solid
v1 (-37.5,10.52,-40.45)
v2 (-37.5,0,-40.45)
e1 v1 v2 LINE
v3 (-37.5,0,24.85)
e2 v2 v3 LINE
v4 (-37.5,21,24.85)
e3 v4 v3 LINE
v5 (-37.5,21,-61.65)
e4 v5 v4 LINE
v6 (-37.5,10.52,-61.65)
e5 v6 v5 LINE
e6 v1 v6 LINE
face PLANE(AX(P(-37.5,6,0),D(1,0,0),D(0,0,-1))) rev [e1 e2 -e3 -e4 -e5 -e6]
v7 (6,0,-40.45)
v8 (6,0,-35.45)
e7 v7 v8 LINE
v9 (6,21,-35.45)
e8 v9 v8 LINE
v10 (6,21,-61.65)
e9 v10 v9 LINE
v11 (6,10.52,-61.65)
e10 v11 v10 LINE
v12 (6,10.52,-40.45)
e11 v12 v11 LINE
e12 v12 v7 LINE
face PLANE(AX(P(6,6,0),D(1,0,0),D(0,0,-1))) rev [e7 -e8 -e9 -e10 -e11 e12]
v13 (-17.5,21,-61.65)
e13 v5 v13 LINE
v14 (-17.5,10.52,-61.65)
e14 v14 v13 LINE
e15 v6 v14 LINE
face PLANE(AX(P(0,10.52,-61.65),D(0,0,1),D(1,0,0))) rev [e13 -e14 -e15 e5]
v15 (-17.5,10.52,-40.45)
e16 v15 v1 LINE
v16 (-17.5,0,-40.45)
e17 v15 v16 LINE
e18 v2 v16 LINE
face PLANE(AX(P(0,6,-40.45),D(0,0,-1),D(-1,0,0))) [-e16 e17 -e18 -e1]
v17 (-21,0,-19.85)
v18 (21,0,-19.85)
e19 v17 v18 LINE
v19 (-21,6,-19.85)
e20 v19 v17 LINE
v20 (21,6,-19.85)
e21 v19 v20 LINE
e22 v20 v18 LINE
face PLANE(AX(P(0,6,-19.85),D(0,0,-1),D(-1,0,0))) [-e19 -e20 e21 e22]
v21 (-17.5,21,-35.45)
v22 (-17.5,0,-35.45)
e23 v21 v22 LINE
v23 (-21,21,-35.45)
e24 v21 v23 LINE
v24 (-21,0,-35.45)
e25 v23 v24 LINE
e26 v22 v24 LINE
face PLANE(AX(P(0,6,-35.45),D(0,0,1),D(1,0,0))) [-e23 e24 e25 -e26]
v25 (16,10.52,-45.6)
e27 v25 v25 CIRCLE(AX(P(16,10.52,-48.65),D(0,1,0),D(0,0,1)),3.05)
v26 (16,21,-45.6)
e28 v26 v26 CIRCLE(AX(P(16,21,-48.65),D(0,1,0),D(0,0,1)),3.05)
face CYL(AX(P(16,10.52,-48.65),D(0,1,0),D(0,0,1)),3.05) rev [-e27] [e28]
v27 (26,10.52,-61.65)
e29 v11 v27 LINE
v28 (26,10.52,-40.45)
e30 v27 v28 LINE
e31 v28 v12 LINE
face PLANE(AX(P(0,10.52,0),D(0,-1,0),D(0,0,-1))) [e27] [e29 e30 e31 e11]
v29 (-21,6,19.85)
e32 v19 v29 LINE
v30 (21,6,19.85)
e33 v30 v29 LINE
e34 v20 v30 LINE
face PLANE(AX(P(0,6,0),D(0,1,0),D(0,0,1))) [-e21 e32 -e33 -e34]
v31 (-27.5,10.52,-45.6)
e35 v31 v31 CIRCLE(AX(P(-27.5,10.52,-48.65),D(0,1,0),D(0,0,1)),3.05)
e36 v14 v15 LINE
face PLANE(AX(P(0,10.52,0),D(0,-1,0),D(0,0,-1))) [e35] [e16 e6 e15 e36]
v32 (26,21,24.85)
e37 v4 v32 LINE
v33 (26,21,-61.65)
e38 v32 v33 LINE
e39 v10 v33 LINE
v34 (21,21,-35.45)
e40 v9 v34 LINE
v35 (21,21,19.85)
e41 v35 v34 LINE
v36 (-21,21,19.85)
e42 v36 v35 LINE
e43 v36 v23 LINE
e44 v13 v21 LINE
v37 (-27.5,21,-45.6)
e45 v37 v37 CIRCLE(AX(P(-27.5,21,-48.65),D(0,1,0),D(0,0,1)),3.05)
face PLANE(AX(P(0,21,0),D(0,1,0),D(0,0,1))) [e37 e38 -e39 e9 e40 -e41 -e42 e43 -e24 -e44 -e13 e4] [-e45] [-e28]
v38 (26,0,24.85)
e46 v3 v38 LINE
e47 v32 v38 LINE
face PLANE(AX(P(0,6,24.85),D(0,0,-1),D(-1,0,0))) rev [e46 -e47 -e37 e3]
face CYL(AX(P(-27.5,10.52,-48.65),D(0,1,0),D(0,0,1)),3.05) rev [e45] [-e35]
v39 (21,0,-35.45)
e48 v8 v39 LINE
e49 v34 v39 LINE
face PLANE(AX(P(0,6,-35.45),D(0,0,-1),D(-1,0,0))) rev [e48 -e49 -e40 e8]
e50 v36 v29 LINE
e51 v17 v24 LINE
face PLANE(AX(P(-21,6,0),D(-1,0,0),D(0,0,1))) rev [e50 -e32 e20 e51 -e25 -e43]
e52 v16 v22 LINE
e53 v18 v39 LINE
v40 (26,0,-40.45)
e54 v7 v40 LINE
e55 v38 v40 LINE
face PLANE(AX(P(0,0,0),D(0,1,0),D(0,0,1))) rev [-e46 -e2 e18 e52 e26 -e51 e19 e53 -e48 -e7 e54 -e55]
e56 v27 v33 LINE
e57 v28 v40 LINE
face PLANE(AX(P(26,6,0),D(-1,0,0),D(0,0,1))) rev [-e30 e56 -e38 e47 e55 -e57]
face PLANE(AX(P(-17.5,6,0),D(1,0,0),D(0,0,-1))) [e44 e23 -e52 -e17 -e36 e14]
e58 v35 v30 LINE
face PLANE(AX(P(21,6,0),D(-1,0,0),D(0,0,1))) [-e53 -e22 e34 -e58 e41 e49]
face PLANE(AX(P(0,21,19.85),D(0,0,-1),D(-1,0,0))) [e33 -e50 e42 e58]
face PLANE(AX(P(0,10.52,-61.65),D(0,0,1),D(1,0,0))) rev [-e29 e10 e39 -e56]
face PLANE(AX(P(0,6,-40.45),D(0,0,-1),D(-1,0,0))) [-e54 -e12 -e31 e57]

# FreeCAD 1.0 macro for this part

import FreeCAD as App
import Part
import Sketcher
from FreeCAD import Vector

doc = App.newDocument("Part")
body = doc.addObject("PartDesign::Body", "Body")

# Sketch on XZ plane
sketch1 = body.newObject("Sketcher::SketchObject", "Sketch")
sketch1.AttachmentSupport = (doc.getObject("XZ_Plane"), [""])
sketch1.MapMode = "FlatFace"
sketch1.addGeometry(Part.LineSegment(Vector(-37.5, -40.5, 0), Vector(-37.5, 24.9, 0)), False)
sketch1.addGeometry(Part.LineSegment(Vector(-37.5, 24.9, 0), Vector(26, 24.9, 0)), False)
sketch1.addGeometry(Part.LineSegment(Vector(26, 24.9, 0), Vector(26, -40.5, 0)), False)
sketch1.addGeometry(Part.LineSegment(Vector(26, -40.5, 0), Vector(6, -40.5, 0)), False)
sketch1.addGeometry(Part.LineSegment(Vector(6, -40.5, 0), Vector(6, -35.5, 0)), False)
sketch1.addGeometry(Part.LineSegment(Vector(6, -35.5, 0), Vector(21, -35.5, 0)), False)
sketch1.addGeometry(Part.LineSegment(Vector(21, -35.5, 0), Vector(21, -19.9, 0)), False)
sketch1.addGeometry(Part.LineSegment(Vector(21, -19.9, 0), Vector(-21, -19.9, 0)), False)
sketch1.addGeometry(Part.LineSegment(Vector(-21, -19.9, 0), Vector(-21, -35.5, 0)), False)
sketch1.addGeometry(Part.LineSegment(Vector(-21, -35.5, 0), Vector(-17.5, -35.5, 0)), False)
sketch1.addGeometry(Part.LineSegment(Vector(-17.5, -35.5, 0), Vector(-17.5, -40.5, 0)), False)
sketch1.addGeometry(Part.LineSegment(Vector(-17.5, -40.5, 0), Vector(-37.5, -40.5, 0)), False)
sketch1.addConstraint(Sketcher.Constraint("Coincident", 0, 2, 1, 1))
sketch1.addConstraint(Sketcher.Constraint("Coincident", 1, 2, 2, 1))
sketch1.addConstraint(Sketcher.Constraint("Coincident", 2, 2, 3, 1))
sketch1.addConstraint(Sketcher.Constraint("Coincident", 3, 2, 4, 1))
sketch1.addConstraint(Sketcher.Constraint("Coincident", 4, 2, 5, 1))
sketch1.addConstraint(Sketcher.Constraint("Coincident", 5, 2, 6, 1))
sketch1.addConstraint(Sketcher.Constraint("Coincident", 6, 2, 7, 1))
sketch1.addConstraint(Sketcher.Constraint("Coincident", 7, 2, 8, 1))
sketch1.addConstraint(Sketcher.Constraint("Coincident", 8, 2, 9, 1))
sketch1.addConstraint(Sketcher.Constraint("Coincident", 9, 2, 10, 1))
sketch1.addConstraint(Sketcher.Constraint("Coincident", 10, 2, 11, 1))
sketch1.addConstraint(Sketcher.Constraint("Coincident", 11, 2, 0, 1))
sketch1.addConstraint(Sketcher.Constraint("Vertical", 0))
sketch1.addConstraint(Sketcher.Constraint("Horizontal", 1))
sketch1.addConstraint(Sketcher.Constraint("Vertical", 2))
sketch1.addConstraint(Sketcher.Constraint("Horizontal", 3))
sketch1.addConstraint(Sketcher.Constraint("Vertical", 4))
sketch1.addConstraint(Sketcher.Constraint("Horizontal", 5))
sketch1.addConstraint(Sketcher.Constraint("Vertical", 6))
sketch1.addConstraint(Sketcher.Constraint("Horizontal", 7))
sketch1.addConstraint(Sketcher.Constraint("Vertical", 8))
sketch1.addConstraint(Sketcher.Constraint("Horizontal", 9))
sketch1.addConstraint(Sketcher.Constraint("Vertical", 10))
sketch1.addConstraint(Sketcher.Constraint("Horizontal", 11))
sketch1.addConstraint(Sketcher.Constraint("Symmetric", 5, 2, 8, 2, -2))
sketch1.addConstraint(Sketcher.Constraint("Horizontal", 3, 2, 10, 2))
sketch1.addConstraint(Sketcher.Constraint("Equal", 3, 11))
sketch1.addConstraint(Sketcher.Constraint("DistanceX", 3, 2, 3, 1, 20.0))
sketch1.addConstraint(Sketcher.Constraint("DistanceX", 5, 1, 5, 2, 15.0))
sketch1.addConstraint(Sketcher.Constraint("DistanceX", 7, 2, 7, 1, 42.0))
sketch1.addConstraint(Sketcher.Constraint("DistanceY", 4, 1, 4, 2, 5.0))
sketch1.addConstraint(Sketcher.Constraint("DistanceX", 1, 1, 1, 2, 63.5))
sketch1.addConstraint(Sketcher.Constraint("DistanceY", 0, 1, 0, 2, 65.3))
sketch1.addConstraint(Sketcher.Constraint("DistanceY", 6, 1, 6, 2, 15.6))
sketch1.addConstraint(Sketcher.Constraint("DistanceY", -1, 1, 0, 2, 24.85))
pad1 = body.newObject("PartDesign::Pad", "Pad")
pad1.Profile = sketch1
pad1.Length = 6
pad1.Reversed = True

# Sketch on XZ plane
sketch2 = body.newObject("Sketcher::SketchObject", "Sketch001")
sketch2.AttachmentSupport = (doc.getObject("XZ_Plane"), [""])
sketch2.MapMode = "FlatFace"
sketch2.addGeometry(Part.LineSegment(Vector(-37.5, -40.5, 0), Vector(-37.5, 24.9, 0)), False)
sketch2.addGeometry(Part.LineSegment(Vector(-37.5, 24.9, 0), Vector(26, 24.9, 0)), False)
sketch2.addGeometry(Part.LineSegment(Vector(26, 24.9, 0), Vector(26, -40.5, 0)), False)
sketch2.addGeometry(Part.LineSegment(Vector(26, -40.5, 0), Vector(6, -40.5, 0)), False)
sketch2.addGeometry(Part.LineSegment(Vector(6, -40.5, 0), Vector(6, -35.5, 0)), False)
sketch2.addGeometry(Part.LineSegment(Vector(6, -35.5, 0), Vector(21, -35.5, 0)), False)
sketch2.addGeometry(Part.LineSegment(Vector(21, -35.5, 0), Vector(21, 19.9, 0)), False)
sketch2.addGeometry(Part.LineSegment(Vector(21, 19.9, 0), Vector(-21, 19.9, 0)), False)
sketch2.addGeometry(Part.LineSegment(Vector(-21, 19.9, 0), Vector(-21, -35.5, 0)), False)
sketch2.addGeometry(Part.LineSegment(Vector(-21, -35.5, 0), Vector(-17.5, -35.5, 0)), False)
sketch2.addGeometry(Part.LineSegment(Vector(-17.5, -35.5, 0), Vector(-17.5, -40.5, 0)), False)
sketch2.addGeometry(Part.LineSegment(Vector(-17.5, -40.5, 0), Vector(-37.5, -40.5, 0)), False)
sketch2.addConstraint(Sketcher.Constraint("Coincident", 0, 2, 1, 1))
sketch2.addConstraint(Sketcher.Constraint("Coincident", 1, 2, 2, 1))
sketch2.addConstraint(Sketcher.Constraint("Coincident", 2, 2, 3, 1))
sketch2.addConstraint(Sketcher.Constraint("Coincident", 3, 2, 4, 1))
sketch2.addConstraint(Sketcher.Constraint("Coincident", 4, 2, 5, 1))
sketch2.addConstraint(Sketcher.Constraint("Coincident", 5, 2, 6, 1))
sketch2.addConstraint(Sketcher.Constraint("Coincident", 6, 2, 7, 1))
sketch2.addConstraint(Sketcher.Constraint("Coincident", 7, 2, 8, 1))
sketch2.addConstraint(Sketcher.Constraint("Coincident", 8, 2, 9, 1))
sketch2.addConstraint(Sketcher.Constraint("Coincident", 9, 2, 10, 1))
sketch2.addConstraint(Sketcher.Constraint("Coincident", 10, 2, 11, 1))
sketch2.addConstraint(Sketcher.Constraint("Coincident", 11, 2, 0, 1))
sketch2.addConstraint(Sketcher.Constraint("Vertical", 0))
sketch2.addConstraint(Sketcher.Constraint("Horizontal", 1))
sketch2.addConstraint(Sketcher.Constraint("Vertical", 2))
sketch2.addConstraint(Sketcher.Constraint("Horizontal", 3))
sketch2.addConstraint(Sketcher.Constraint("Vertical", 4))
sketch2.addConstraint(Sketcher.Constraint("Horizontal", 5))
sketch2.addConstraint(Sketcher.Constraint("Vertical", 6))
sketch2.addConstraint(Sketcher.Constraint("Horizontal", 7))
sketch2.addConstraint(Sketcher.Constraint("Vertical", 8))
sketch2.addConstraint(Sketcher.Constraint("Horizontal", 9))
sketch2.addConstraint(Sketcher.Constraint("Vertical", 10))
sketch2.addConstraint(Sketcher.Constraint("Horizontal", 11))
sketch2.addConstraint(Sketcher.Constraint("Symmetric", 5, 2, 8, 2, -2))
sketch2.addConstraint(Sketcher.Constraint("Horizontal", 3, 2, 10, 2))
sketch2.addConstraint(Sketcher.Constraint("Equal", 3, 11))
sketch2.addConstraint(Sketcher.Constraint("DistanceX", 3, 2, 3, 1, 20.0))
sketch2.addConstraint(Sketcher.Constraint("DistanceX", 5, 1, 5, 2, 15.0))
sketch2.addConstraint(Sketcher.Constraint("DistanceX", 7, 2, 7, 1, 42.0))
sketch2.addConstraint(Sketcher.Constraint("DistanceY", 4, 1, 4, 2, 5.0))
sketch2.addConstraint(Sketcher.Constraint("DistanceX", 1, 1, 1, 2, 63.5))
sketch2.addConstraint(Sketcher.Constraint("DistanceY", 0, 1, 0, 2, 65.3))
sketch2.addConstraint(Sketcher.Constraint("DistanceY", 6, 1, 6, 2, 55.3))
sketch2.addConstraint(Sketcher.Constraint("DistanceY", -1, 1, 0, 2, 24.85))
pad2 = body.newObject("PartDesign::Pad", "Pad001")
pad2.Profile = sketch2
pad2.Length = 21
pad2.Reversed = True

# Sketch on XZ plane
sketch3 = body.newObject("Sketcher::SketchObject", "Sketch002")
sketch3.AttachmentSupport = (doc.getObject("XZ_Plane"), [""])
sketch3.MapMode = "FlatFace"
sketch3.AttachmentOffset = App.Placement(Vector(0, 0, -21), App.Rotation())
sketch3.addGeometry(Part.LineSegment(Vector(-37.5, -61.6, 0), Vector(-37.5, -40.5, 0)), False)
sketch3.addGeometry(Part.LineSegment(Vector(-37.5, -40.5, 0), Vector(-17.5, -40.5, 0)), False)
sketch3.addGeometry(Part.LineSegment(Vector(-17.5, -40.5, 0), Vector(-17.5, -61.6, 0)), False)
sketch3.addGeometry(Part.LineSegment(Vector(-17.5, -61.6, 0), Vector(-37.5, -61.6, 0)), False)
sketch3.addGeometry(Part.Circle(Vector(-27.5, -48.6, 0), Vector(0, 0, 1), 3), False)
sketch3.addGeometry(Part.LineSegment(Vector(6, -61.6, 0), Vector(6, -40.5, 0)), False)
sketch3.addGeometry(Part.LineSegment(Vector(6, -40.5, 0), Vector(26, -40.5, 0)), False)
sketch3.addGeometry(Part.LineSegment(Vector(26, -40.5, 0), Vector(26, -61.6, 0)), False)
sketch3.addGeometry(Part.LineSegment(Vector(26, -61.6, 0), Vector(6, -61.6, 0)), False)
sketch3.addGeometry(Part.Circle(Vector(16, -48.6, 0), Vector(0, 0, 1), 3), False)
sketch3.addConstraint(Sketcher.Constraint("Coincident", 0, 2, 1, 1))
sketch3.addConstraint(Sketcher.Constraint("Coincident", 1, 2, 2, 1))
sketch3.addConstraint(Sketcher.Constraint("Coincident", 2, 2, 3, 1))
sketch3.addConstraint(Sketcher.Constraint("Coincident", 3, 2, 0, 1))
sketch3.addConstraint(Sketcher.Constraint("Coincident", 5, 2, 6, 1))
sketch3.addConstraint(Sketcher.Constraint("Coincident", 6, 2, 7, 1))
sketch3.addConstraint(Sketcher.Constraint("Coincident", 7, 2, 8, 1))
sketch3.addConstraint(Sketcher.Constraint("Coincident", 8, 2, 5, 1))
sketch3.addConstraint(Sketcher.Constraint("Vertical", 0))
sketch3.addConstraint(Sketcher.Constraint("Horizontal", 1))
sketch3.addConstraint(Sketcher.Constraint("Vertical", 2))
sketch3.addConstraint(Sketcher.Constraint("Horizontal", 3))
sketch3.addConstraint(Sketcher.Constraint("Vertical", 5))
sketch3.addConstraint(Sketcher.Constraint("Horizontal", 6))
sketch3.addConstraint(Sketcher.Constraint("Vertical", 7))
sketch3.addConstraint(Sketcher.Constraint("Horizontal", 8))
sketch3.addConstraint(Sketcher.Constraint("Equal", 4, 9))
sketch3.addConstraint(Sketcher.Constraint("Horizontal", 4, 3, 9, 3))
sketch3.addConstraint(Sketcher.Constraint("Horizontal", 1, 2, 5, 2))
sketch3.addConstraint(Sketcher.Constraint("Horizontal", 3, 2, 7, 2))
sketch3.addConstraint(Sketcher.Constraint("Equal", 3, 6))
sketch3.addConstraint(Sketcher.Constraint("Diameter", 4, 6.1))
sketch3.addConstraint(Sketcher.Constraint("DistanceX", 1, 1, 1, 2, 20.0))
sketch3.addConstraint(Sketcher.Constraint("DistanceY", 0, 1, 0, 2, 21.2))
sketch3.addConstraint(Sketcher.Constraint("DistanceX", -1, 1, 9, 3, 16.0))
sketch3.addConstraint(Sketcher.Constraint("DistanceX", -1, 1, 5, 2, 6.0))
sketch3.addConstraint(Sketcher.Constraint("DistanceX", 0, 2, 4, 3, 10.0))
sketch3.addConstraint(Sketcher.Constraint("DistanceY", 2, 2, 4, 3, 13.0))
sketch3.addConstraint(Sketcher.Constraint("DistanceX", 4, 3, -1, 1, 27.5))
sketch3.addConstraint(Sketcher.Constraint("DistanceY", 4, 3, -1, 1, 48.65))
pad3 = body.newObject("PartDesign::Pad", "Pad002")
pad3.Profile = sketch3
pad3.Length = 10.48

doc.recompute()
